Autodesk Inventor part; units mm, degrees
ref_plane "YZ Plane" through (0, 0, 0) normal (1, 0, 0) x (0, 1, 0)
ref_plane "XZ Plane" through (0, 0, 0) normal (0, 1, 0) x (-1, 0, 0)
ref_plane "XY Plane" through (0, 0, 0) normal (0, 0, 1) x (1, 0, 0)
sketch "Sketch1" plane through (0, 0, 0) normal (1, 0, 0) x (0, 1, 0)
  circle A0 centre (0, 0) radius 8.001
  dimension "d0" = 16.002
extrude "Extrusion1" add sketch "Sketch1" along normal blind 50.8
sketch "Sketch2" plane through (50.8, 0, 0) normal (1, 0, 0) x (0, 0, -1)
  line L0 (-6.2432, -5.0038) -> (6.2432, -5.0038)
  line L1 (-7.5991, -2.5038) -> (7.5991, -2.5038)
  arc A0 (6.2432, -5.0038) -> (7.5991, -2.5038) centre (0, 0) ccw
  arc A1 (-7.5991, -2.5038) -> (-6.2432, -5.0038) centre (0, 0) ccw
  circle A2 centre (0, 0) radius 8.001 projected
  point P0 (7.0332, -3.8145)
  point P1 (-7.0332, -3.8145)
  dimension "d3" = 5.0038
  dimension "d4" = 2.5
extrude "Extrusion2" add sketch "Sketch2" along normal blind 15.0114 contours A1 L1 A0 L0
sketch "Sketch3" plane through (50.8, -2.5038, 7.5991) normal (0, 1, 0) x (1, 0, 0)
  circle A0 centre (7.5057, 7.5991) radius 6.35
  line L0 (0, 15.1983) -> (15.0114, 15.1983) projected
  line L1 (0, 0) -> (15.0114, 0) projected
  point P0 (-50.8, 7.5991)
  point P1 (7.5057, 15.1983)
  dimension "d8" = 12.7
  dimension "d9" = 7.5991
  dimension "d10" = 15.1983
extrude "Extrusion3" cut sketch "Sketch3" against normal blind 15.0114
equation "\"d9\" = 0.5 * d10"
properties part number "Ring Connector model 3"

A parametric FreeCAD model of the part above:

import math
import FreeCAD as App
import Part
import Sketcher

V = App.Vector
Q = App.Units.Quantity

doc = App.newDocument("Part")
body = doc.addObject("PartDesign::Body", "Body")

sketch1 = body.newObject("Sketcher::SketchObject", "Sketch")
sketch1.AttachmentSupport = (doc.getObject("YZ_Plane"), [""])
sketch1.MapMode = "FlatFace"
sketch1.addGeometry(Part.Circle(V(0, 0, 0), V(0, 0, 1), 8), False)
sketch1.addConstraint([
    Sketcher.Constraint("Coincident", 0, 3, -1, 1),
    Sketcher.Constraint("Diameter", 0, Q("0.63 in")),
])
pad1 = body.newObject("PartDesign::Pad", "Pad")
pad1.Profile = sketch1
pad1.Length = Q("2 in")

sketch2 = body.newObject("Sketcher::SketchObject", "Sketch001")
sketch2.AttachmentSupport = (doc.getObject("YZ_Plane"), [""])
sketch2.MapMode = "FlatFace"
sketch2.AttachmentOffset = App.Placement(V(0, 0, 2 * 25.4), App.Rotation())
sketch2.addGeometry([
    Part.ArcOfCircle(Part.Circle(V(0, 0, 0), V(0, 0, 1), 8), math.radians(108), math.radians(129)),
    Part.LineSegment(V(-5, 6.2, 0), V(-5, -6.2, 0)),
    Part.ArcOfCircle(Part.Circle(V(0, 0, 0), V(0, 0, 1), 8), math.radians(-129), math.radians(-108)),
    Part.LineSegment(V(-2.5, -7.6, 0), V(-2.5, 7.6, 0)),
], False)
sketch2.addConstraint([
    Sketcher.Constraint("Coincident", 0, 2, 1, 1),
    Sketcher.Constraint("Coincident", 1, 2, 2, 1),
    Sketcher.Constraint("Coincident", 2, 2, 3, 1),
    Sketcher.Constraint("Coincident", 3, 2, 0, 1),
    Sketcher.Constraint("Vertical", 1),
    Sketcher.Constraint("Vertical", 3),
    Sketcher.Constraint("Coincident", 0, 3, -1, 1),
    Sketcher.Constraint("Coincident", 2, 3, -1, 1),
    Sketcher.Constraint("Equal", 0, 2),
    Sketcher.Constraint("DistanceX", 0, 2, -1, 1, Q("0.197 in")),
    Sketcher.Constraint("Radius", 0, Q("0.315 in")),
    Sketcher.Constraint("DistanceX", 1, 2, 2, 2, 2.5),
])
pad2 = body.newObject("PartDesign::Pad", "Pad001")
pad2.Profile = sketch2
pad2.Length = Q("0.591 in")

sketch3 = body.newObject("Sketcher::SketchObject", "Sketch002")
sketch3.AttachmentSupport = (doc.getObject("XZ_Plane"), [""])
sketch3.MapMode = "FlatFace"
sketch3.AttachmentOffset = App.Placement(V(0, 0, 2.5038), App.Rotation())
sketch3.addGeometry(Part.Circle(V(58, 0, 0), V(0, 0, 1), 6), False)
sketch3.addConstraint([
    Sketcher.Constraint("PointOnObject", 0, 3, -1),
    Sketcher.Constraint("Diameter", 0, Q("0.5 in")),
    Sketcher.Constraint("DistanceX", -1, 1, 0, 3, Q("2.2955 in")),
])
pocket1 = body.newObject("PartDesign::Pocket", "Pocket")
pocket1.Profile = sketch3
pocket1.Length = Q("0.591 in")
pocket1.Reversed = True

doc.recompute()
